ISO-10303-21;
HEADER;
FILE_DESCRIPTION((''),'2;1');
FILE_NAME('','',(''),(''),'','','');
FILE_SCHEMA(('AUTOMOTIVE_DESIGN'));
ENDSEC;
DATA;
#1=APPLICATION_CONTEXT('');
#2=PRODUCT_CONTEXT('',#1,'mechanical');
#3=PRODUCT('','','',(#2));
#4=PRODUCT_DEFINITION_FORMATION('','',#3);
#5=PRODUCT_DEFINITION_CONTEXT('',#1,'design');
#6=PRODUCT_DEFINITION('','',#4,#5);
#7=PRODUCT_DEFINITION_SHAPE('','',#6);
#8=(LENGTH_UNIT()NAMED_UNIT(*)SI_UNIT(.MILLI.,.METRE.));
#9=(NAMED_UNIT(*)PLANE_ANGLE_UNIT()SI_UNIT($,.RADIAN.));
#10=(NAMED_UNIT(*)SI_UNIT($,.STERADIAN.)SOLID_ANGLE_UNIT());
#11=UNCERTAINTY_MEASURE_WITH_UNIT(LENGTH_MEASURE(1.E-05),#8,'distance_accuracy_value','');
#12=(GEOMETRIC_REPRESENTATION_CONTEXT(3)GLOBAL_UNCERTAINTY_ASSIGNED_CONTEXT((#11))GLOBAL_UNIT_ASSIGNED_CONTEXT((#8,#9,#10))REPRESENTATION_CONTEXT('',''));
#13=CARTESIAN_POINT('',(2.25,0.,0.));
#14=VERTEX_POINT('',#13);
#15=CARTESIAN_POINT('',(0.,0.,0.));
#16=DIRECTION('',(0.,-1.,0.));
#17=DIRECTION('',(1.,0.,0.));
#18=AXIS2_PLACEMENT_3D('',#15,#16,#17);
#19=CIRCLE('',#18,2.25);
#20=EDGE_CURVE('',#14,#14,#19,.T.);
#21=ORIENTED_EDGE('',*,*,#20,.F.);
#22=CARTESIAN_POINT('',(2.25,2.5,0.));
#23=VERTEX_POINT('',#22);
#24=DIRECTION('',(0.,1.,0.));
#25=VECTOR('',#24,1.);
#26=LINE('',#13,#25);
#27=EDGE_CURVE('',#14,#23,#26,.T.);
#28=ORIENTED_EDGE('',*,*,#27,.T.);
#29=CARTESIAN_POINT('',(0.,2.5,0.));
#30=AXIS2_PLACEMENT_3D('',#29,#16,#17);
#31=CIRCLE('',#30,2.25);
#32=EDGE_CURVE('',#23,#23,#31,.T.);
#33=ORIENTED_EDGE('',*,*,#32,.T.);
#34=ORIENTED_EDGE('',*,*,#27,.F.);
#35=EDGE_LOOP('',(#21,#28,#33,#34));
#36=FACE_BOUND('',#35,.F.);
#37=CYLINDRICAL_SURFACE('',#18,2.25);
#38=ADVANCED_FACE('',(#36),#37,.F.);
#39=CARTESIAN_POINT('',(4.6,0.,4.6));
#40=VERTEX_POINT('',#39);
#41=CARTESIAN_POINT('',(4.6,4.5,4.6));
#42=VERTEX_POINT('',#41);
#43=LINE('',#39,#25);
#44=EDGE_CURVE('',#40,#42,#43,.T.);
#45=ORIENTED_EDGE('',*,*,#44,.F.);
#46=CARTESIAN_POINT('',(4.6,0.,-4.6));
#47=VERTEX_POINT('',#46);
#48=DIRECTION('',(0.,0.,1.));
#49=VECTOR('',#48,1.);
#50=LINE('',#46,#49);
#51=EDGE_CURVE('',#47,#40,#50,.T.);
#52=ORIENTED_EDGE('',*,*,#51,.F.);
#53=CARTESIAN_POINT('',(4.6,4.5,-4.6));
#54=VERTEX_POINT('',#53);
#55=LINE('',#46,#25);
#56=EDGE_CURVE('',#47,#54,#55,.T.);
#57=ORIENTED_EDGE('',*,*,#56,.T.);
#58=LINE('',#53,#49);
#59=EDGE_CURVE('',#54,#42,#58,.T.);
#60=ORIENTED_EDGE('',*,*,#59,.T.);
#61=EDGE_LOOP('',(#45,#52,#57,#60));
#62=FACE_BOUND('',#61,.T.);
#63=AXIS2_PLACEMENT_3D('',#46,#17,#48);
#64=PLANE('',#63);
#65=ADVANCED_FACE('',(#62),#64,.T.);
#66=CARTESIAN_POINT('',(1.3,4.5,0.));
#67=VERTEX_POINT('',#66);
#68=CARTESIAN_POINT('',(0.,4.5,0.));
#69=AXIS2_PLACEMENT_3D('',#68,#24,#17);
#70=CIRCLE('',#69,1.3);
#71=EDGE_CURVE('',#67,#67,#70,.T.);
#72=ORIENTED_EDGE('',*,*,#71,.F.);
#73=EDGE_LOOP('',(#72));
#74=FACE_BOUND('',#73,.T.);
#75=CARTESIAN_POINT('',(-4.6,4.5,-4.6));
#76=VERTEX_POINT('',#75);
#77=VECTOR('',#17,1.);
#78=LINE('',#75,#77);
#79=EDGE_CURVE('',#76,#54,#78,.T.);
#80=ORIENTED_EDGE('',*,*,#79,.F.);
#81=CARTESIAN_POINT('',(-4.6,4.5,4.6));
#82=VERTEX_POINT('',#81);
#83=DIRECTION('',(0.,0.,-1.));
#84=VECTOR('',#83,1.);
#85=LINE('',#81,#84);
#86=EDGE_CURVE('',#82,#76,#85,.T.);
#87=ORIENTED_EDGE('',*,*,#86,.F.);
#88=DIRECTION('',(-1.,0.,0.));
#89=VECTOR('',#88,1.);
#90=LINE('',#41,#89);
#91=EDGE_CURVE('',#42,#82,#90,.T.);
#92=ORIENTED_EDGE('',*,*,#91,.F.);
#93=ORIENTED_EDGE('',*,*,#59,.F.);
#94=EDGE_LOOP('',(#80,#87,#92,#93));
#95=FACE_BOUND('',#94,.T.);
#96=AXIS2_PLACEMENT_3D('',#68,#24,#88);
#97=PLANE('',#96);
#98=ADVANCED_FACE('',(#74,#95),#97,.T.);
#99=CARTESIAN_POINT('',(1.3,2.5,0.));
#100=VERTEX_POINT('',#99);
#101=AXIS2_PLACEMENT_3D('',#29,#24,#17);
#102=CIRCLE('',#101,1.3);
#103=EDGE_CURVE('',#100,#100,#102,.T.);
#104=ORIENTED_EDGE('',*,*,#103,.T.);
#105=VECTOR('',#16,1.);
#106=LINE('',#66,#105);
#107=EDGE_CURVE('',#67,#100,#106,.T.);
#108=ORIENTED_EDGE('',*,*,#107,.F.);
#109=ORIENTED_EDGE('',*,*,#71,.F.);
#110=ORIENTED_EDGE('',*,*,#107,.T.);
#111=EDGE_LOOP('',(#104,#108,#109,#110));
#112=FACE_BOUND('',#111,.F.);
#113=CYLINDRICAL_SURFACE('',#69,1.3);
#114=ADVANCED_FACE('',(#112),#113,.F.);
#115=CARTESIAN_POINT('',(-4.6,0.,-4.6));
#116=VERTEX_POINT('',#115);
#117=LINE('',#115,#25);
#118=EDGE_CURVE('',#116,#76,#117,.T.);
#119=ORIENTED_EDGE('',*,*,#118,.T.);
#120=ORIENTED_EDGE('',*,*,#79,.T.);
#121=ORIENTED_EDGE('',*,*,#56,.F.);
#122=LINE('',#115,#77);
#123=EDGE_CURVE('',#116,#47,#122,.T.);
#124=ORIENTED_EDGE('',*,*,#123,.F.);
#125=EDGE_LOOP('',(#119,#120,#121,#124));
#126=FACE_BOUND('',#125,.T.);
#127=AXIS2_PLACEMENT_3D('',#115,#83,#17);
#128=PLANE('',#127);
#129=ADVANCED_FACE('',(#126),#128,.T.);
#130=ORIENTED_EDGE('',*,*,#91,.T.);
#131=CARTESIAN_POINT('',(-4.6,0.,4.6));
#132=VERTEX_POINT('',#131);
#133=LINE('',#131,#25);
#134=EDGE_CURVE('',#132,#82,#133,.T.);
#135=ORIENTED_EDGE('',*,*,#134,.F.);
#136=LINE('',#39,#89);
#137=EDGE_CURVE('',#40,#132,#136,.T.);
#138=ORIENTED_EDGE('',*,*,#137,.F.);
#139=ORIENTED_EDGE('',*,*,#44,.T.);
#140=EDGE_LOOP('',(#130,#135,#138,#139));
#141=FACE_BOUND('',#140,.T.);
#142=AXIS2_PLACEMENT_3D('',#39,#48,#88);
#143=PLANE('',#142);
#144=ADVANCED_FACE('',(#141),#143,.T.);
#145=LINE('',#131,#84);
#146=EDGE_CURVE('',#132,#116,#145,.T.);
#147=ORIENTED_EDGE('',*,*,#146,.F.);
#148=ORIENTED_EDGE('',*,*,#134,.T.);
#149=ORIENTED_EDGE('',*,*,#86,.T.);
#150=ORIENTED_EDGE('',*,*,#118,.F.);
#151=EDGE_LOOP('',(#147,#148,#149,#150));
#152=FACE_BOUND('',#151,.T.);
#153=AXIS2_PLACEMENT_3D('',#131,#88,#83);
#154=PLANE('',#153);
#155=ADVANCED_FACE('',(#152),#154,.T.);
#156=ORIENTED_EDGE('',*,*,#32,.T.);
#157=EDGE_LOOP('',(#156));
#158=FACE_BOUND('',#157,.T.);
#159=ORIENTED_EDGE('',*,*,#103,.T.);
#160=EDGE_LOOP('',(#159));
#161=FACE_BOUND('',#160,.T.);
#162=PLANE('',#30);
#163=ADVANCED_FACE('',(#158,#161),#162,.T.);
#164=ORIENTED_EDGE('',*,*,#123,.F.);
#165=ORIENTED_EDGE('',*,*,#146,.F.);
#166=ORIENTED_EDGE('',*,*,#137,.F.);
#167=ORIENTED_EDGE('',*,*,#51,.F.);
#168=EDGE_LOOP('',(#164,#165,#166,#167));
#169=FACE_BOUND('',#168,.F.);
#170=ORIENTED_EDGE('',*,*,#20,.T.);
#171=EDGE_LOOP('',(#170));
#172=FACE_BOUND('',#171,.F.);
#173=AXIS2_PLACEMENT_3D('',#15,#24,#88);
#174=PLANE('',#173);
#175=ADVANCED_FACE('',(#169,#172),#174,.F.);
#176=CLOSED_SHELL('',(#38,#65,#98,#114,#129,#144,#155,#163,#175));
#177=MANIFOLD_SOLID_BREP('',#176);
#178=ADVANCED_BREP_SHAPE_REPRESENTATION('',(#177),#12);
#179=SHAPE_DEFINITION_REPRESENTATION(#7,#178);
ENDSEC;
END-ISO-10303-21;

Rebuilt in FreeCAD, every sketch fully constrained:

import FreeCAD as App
import Part
import Sketcher
from FreeCAD import Vector
Q = App.Units.Quantity


def add_polygon(sketch, points):
    """Adds a closed chain of lines whose ends are joined by coincident constraints."""
    first, n = sketch.GeometryCount, len(points)
    for a, b in zip(points, points[1:] + points[:1]):
        sketch.addGeometry(Part.LineSegment(App.Vector(*a, 0), App.Vector(*b, 0)), False)
    for i in range(n):
        sketch.addConstraint(Sketcher.Constraint("Coincident", first + i, 2, first + (i + 1) % n, 1))

doc = App.newDocument("Part")
body = doc.addObject("PartDesign::Body", "Body")

# Sketch on XZ plane
sketch1 = body.newObject("Sketcher::SketchObject", "Sketch")
sketch1.AttachmentSupport = (doc.getObject("XZ_Plane"), [""])
sketch1.MapMode = "FlatFace"
add_polygon(sketch1, [(-4.6, 4.6), (4.6, 4.6), (4.6, -4.6), (-4.6, -4.6)])  # lines 0-3
sketch1.addConstraint(Sketcher.Constraint("Horizontal", 0))
sketch1.addConstraint(Sketcher.Constraint("Vertical", 1))
sketch1.addConstraint(Sketcher.Constraint("Horizontal", 2))
sketch1.addConstraint(Sketcher.Constraint("Vertical", 3))
sketch1.addConstraint(Sketcher.Constraint("Symmetric", 0, 2, 2, 2, -1, 1))
sketch1.addConstraint(Sketcher.Constraint("Equal", 2, 1))
sketch1.addConstraint(Sketcher.Constraint("DistanceX", 0, 1, 0, 2, Q("9.2 mm")))
pad1 = body.newObject("PartDesign::Pad", "Pad")
pad1.Profile = sketch1
pad1.Length = 4.5
pad1.Reversed = True

# Sketch on XZ plane
sketch2 = body.newObject("Sketcher::SketchObject", "Sketch001")
sketch2.AttachmentSupport = (doc.getObject("XZ_Plane"), [""])
sketch2.MapMode = "FlatFace"
sketch2.AttachmentOffset = App.Placement(Vector(0, 0, -4.5), App.Rotation())
sketch2.addGeometry(Part.Circle(Vector(0, 0, 0), Vector(0, 0, 1), 1.3), False)
sketch2.addConstraint(Sketcher.Constraint("Coincident", 0, 3, -1, 1))
sketch2.addConstraint(Sketcher.Constraint("Diameter", 0, Q("2.6 mm")))
pocket1 = body.newObject("PartDesign::Pocket", "Pocket")
pocket1.Profile = sketch2
pocket1.Length = 2
pocket1.Reversed = True

# Sketch on XZ plane
sketch3 = body.newObject("Sketcher::SketchObject", "Sketch002")
sketch3.AttachmentSupport = (doc.getObject("XZ_Plane"), [""])
sketch3.MapMode = "FlatFace"
sketch3.addGeometry(Part.Circle(Vector(0, 0, 0), Vector(0, 0, 1), 2.25), False)
sketch3.addConstraint(Sketcher.Constraint("Coincident", 0, 3, -1, 1))
sketch3.addConstraint(Sketcher.Constraint("Diameter", 0, Q("4.5 mm")))
pocket2 = body.newObject("PartDesign::Pocket", "Pocket001")
pocket2.Profile = sketch3
pocket2.Length = 2.5

doc.recompute()
